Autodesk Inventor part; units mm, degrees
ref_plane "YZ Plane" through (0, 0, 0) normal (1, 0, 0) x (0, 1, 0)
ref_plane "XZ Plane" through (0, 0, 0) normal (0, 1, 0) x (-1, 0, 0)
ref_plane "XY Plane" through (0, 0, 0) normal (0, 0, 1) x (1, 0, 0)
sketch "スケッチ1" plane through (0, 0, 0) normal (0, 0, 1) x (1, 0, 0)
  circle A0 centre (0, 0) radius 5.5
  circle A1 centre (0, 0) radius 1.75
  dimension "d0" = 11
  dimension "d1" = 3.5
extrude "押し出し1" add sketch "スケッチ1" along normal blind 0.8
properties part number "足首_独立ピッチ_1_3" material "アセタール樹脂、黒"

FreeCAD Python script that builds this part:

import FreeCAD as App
import Part
import Sketcher

V = App.Vector
Q = App.Units.Quantity

doc = App.newDocument("Part")
params = doc.addObject("Spreadsheet::Sheet", "Params")
for row, (alias, value) in enumerate([
    ("sketch1_diameter", "11 mm"),
    ("sketch1_diameter2", "3.5 mm"),
    ("pad1_length", "0.8 mm"),
], start=1):
    params.set(f"A{row}", alias)
    params.set(f"B{row}", "=" + value)
    params.setAlias(f"B{row}", alias)

body = doc.addObject("PartDesign::Body", "Body")

sketch1 = body.newObject("Sketcher::SketchObject", "Sketch")
sketch1.AttachmentSupport = (doc.getObject("XY_Plane"), [""])
sketch1.MapMode = "FlatFace"
sketch1.addGeometry([
    Part.Circle(V(0, 0, 0), V(0, 0, 1), 5.5),
    Part.Circle(V(0, 0, 0), V(0, 0, 1), 1.8),
], False)
sketch1.addConstraint([
    Sketcher.Constraint("Coincident", 0, 3, -1, 1),
    Sketcher.Constraint("Coincident", 1, 3, -1, 1),
    Sketcher.Constraint("Diameter", 0, Q("11 mm")),
    Sketcher.Constraint("Diameter", 1, Q("3.5 mm")),
])
sketch1.setExpression("Constraints[2]", "Params.sketch1_diameter")
sketch1.setExpression("Constraints[3]", "Params.sketch1_diameter2")
pad1 = body.newObject("PartDesign::Pad", "Pad")
pad1.Profile = sketch1
pad1.setExpression("Length", "Params.pad1_length")

doc.recompute()
